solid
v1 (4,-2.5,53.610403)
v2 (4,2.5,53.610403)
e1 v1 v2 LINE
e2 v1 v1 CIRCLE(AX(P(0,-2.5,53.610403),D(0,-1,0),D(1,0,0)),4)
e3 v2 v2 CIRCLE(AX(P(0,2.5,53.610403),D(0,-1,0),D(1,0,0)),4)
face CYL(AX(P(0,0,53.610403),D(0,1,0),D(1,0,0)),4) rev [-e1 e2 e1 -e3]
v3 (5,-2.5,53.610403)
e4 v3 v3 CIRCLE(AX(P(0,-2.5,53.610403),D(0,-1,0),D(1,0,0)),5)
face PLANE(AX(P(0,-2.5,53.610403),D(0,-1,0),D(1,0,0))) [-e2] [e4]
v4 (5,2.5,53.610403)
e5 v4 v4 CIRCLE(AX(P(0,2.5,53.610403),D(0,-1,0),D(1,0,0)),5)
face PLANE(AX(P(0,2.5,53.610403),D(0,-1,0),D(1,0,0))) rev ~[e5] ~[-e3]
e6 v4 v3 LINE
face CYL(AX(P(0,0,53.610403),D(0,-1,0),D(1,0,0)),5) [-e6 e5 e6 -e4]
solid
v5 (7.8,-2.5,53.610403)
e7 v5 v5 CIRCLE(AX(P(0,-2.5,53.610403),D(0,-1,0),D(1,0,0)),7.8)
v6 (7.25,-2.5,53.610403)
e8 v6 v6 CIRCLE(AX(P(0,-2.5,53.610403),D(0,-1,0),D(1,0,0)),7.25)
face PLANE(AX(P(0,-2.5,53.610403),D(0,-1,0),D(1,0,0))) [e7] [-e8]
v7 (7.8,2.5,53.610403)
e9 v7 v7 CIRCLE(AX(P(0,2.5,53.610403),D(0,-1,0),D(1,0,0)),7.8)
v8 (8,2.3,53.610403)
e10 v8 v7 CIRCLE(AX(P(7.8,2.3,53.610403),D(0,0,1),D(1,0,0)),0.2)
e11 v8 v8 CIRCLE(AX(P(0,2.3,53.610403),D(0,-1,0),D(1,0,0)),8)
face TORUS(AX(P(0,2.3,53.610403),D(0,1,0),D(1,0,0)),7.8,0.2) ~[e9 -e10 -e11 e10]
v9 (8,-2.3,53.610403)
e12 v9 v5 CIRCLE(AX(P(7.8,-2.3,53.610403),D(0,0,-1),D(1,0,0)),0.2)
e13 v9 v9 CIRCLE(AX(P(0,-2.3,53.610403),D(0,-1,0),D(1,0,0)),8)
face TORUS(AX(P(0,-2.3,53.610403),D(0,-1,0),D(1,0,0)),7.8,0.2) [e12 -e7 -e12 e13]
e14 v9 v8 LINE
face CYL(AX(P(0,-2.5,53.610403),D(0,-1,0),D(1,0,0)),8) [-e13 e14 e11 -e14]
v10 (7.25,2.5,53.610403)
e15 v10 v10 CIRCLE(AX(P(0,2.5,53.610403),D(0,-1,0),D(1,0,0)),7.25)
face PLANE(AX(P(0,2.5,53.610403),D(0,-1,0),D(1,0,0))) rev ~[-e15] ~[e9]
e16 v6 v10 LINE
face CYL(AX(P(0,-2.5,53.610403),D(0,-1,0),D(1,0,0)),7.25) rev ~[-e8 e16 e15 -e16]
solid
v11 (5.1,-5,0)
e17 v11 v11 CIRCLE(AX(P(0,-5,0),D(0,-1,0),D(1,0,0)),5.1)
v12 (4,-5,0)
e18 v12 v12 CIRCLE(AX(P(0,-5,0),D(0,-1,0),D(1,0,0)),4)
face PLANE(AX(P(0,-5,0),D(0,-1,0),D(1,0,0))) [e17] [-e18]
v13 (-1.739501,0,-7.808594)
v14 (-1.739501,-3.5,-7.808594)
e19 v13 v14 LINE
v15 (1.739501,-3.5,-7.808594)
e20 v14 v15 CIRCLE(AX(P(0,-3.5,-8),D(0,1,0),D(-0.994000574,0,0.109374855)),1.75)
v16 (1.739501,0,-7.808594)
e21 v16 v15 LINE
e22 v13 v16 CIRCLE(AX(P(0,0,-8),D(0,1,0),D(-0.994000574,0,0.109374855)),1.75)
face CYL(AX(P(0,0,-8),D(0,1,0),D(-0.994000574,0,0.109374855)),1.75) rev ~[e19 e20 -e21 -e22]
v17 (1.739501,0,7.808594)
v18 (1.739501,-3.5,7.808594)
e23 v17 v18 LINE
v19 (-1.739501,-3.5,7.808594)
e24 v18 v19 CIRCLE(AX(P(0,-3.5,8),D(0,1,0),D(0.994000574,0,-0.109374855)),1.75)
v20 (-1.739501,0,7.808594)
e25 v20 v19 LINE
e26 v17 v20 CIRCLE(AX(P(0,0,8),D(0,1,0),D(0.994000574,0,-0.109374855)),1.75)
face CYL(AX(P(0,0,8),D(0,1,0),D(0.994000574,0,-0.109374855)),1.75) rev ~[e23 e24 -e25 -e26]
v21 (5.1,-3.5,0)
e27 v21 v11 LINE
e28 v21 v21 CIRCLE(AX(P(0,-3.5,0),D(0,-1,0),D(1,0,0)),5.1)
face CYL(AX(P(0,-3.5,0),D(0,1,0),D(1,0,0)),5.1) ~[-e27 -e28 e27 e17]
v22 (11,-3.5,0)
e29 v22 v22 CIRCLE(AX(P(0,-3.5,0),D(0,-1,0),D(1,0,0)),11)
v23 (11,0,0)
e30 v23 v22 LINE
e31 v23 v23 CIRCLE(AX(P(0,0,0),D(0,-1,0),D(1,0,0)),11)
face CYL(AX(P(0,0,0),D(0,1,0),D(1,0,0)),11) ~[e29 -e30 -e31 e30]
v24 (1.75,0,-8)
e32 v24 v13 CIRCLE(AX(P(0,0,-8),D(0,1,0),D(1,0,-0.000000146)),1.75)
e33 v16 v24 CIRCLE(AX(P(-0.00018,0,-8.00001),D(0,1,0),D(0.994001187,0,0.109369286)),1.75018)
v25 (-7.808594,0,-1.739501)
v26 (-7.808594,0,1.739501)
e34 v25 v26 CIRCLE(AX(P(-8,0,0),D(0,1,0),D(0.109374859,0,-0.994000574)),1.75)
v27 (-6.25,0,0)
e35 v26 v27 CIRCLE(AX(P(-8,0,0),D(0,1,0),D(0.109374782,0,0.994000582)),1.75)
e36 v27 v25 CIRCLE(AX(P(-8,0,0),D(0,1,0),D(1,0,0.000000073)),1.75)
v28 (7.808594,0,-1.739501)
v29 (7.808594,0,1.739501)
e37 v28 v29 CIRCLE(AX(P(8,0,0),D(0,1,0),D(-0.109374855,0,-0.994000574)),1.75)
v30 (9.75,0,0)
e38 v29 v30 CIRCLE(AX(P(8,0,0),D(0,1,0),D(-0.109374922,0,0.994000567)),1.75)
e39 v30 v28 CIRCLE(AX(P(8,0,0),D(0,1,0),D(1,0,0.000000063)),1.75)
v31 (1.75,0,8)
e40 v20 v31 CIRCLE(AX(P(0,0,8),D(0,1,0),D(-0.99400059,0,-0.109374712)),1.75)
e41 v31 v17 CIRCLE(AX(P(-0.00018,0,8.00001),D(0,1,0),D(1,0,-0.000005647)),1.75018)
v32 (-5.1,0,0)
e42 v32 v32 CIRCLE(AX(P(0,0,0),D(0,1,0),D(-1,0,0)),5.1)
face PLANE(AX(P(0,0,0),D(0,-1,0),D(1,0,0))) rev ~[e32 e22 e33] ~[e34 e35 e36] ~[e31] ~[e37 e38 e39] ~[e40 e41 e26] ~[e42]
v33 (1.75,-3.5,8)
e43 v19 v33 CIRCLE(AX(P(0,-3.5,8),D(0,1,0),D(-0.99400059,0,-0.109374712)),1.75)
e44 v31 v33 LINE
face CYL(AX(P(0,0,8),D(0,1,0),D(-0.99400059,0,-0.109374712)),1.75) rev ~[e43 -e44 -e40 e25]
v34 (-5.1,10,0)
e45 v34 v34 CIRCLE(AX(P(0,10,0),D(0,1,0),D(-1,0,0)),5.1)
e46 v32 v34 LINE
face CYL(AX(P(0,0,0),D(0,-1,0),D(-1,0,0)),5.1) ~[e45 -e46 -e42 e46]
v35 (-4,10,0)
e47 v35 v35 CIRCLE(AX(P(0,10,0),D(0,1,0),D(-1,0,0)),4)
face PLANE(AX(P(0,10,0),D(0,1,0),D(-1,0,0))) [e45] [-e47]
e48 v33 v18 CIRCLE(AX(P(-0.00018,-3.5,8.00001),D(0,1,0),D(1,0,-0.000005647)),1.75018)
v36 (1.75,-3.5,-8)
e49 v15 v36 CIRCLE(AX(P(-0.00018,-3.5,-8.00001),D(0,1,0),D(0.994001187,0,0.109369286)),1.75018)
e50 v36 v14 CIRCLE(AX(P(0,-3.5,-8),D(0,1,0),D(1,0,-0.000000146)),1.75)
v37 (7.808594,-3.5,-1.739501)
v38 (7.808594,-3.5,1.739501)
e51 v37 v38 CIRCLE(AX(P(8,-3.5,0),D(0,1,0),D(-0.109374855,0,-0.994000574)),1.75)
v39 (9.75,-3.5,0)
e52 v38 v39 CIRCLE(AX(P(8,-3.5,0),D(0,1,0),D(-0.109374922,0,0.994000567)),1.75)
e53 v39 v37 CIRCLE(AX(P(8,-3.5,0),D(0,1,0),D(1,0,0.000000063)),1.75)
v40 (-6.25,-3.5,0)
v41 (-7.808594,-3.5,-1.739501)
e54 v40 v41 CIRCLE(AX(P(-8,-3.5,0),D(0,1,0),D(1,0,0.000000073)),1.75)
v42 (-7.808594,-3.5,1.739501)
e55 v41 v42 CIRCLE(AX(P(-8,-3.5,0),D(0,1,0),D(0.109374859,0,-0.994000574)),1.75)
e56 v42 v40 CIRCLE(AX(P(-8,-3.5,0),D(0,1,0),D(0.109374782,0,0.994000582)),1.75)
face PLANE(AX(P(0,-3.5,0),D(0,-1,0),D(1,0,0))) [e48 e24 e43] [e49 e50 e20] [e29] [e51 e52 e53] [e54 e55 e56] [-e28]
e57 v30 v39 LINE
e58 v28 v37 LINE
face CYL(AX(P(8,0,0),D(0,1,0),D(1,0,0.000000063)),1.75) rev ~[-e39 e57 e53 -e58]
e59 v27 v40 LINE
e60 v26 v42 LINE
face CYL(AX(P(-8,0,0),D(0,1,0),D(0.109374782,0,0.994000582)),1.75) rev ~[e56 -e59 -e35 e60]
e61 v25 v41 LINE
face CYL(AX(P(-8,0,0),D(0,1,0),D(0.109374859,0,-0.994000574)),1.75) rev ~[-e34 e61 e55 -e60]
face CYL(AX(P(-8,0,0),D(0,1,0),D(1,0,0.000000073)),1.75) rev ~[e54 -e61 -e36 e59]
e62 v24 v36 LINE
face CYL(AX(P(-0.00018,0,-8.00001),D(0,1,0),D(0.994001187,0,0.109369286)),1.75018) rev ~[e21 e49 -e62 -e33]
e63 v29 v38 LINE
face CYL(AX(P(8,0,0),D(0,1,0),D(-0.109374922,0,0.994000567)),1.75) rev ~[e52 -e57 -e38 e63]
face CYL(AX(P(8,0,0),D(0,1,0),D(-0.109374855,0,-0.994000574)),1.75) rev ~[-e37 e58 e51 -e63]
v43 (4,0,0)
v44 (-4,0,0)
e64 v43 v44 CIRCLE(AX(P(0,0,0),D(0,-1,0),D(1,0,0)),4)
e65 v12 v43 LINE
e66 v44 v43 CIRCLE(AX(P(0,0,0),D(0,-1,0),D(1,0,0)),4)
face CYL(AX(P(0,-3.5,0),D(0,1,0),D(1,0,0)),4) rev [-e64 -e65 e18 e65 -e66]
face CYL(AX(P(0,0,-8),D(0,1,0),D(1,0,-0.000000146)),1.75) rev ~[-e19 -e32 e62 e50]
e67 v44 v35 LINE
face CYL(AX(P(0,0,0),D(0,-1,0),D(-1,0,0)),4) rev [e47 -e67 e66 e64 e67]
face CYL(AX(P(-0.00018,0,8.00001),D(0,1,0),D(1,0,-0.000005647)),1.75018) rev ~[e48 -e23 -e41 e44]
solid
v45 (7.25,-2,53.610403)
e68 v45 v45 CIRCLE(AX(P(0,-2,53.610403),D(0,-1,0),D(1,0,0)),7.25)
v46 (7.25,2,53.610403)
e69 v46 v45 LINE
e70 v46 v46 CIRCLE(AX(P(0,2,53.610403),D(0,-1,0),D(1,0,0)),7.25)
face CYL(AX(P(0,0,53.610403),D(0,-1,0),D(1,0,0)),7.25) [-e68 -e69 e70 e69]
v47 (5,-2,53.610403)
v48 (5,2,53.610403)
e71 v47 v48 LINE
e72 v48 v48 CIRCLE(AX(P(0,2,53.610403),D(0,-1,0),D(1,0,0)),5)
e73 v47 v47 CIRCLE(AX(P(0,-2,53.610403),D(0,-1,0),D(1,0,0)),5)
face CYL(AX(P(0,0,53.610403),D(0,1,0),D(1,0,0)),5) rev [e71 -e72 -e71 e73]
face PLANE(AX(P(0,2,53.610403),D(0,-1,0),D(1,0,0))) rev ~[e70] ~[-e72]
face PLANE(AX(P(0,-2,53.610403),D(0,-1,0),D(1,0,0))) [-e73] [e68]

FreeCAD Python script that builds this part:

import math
import FreeCAD as App
import Part
import Sketcher

V = App.Vector


def edges_at(feature, points):
    """Names of the edges that pass closest to the given points."""
    edges = feature.Shape.Edges
    near = lambda p: min(range(len(edges)), key=lambda i: edges[i].distToShape(Part.Vertex(*p))[0])
    return sorted({f"Edge{near(p) + 1}" for p in points})

doc = App.newDocument("Part")
body = doc.addObject("PartDesign::Body", "Body")

sketch1 = body.newObject("Sketcher::SketchObject", "Sketch")
sketch1.AttachmentSupport = (doc.getObject("XZ_Plane"), [""])
sketch1.MapMode = "FlatFace"
sketch1.addGeometry([
    Part.Circle(V(0, 0, 0), V(0, 0, 1), 11),
    Part.ArcOfCircle(Part.Circle(V(-8, 0, 0), V(0, 0, 1), 1.75), math.radians(84), math.radians(276)),
    Part.ArcOfCircle(Part.Circle(V(-8, 0, 0), V(0, 0, 1), 1.75), math.radians(0), math.radians(84)),
    Part.ArcOfCircle(Part.Circle(V(-8, 0, 0), V(0, 0, 1), 1.75), math.radians(-84), math.radians(0)),
    Part.Circle(V(0, 0, 0), V(0, 0, 1), 4),
    Part.ArcOfCircle(Part.Circle(V(0, -8, 0), V(0, 0, 1), 1.75), math.radians(174), math.radians(360)),
    Part.ArcOfCircle(Part.Circle(V(0, -8, 0), V(0, 0, 1), 1.75), math.radians(6), math.radians(174)),
    Part.ArcOfCircle(Part.Circle(V(0, -8, 0), V(0, 0, 1), 1.75), math.radians(0), math.radians(6.28)),
    Part.ArcOfCircle(Part.Circle(V(8, 0, 0), V(0, 0, 1), 1.75), math.radians(-96), math.radians(0)),
    Part.ArcOfCircle(Part.Circle(V(8, 0, 0), V(0, 0, 1), 1.75), math.radians(96), math.radians(264)),
    Part.ArcOfCircle(Part.Circle(V(8, 0, 0), V(0, 0, 1), 1.75), math.radians(0), math.radians(96)),
    Part.ArcOfCircle(Part.Circle(V(0, 8, 0), V(0, 0, 1), 1.75), math.radians(-6.28), math.radians(0)),
    Part.ArcOfCircle(Part.Circle(V(0, 8, 0), V(0, 0, 1), 1.75), math.radians(-174), math.radians(-6)),
    Part.ArcOfCircle(Part.Circle(V(0, 8, 0), V(0, 0, 1), 1.75), math.radians(0), math.radians(186)),
], False)
sketch1.addConstraint([
    Sketcher.Constraint("Tangent", 1, 1, 2, 2),
    Sketcher.Constraint("Tangent", 2, 1, 3, 2),
    Sketcher.Constraint("Tangent", 3, 1, 1, 2),
    Sketcher.Constraint("Tangent", 5, 1, 6, 2),
    Sketcher.Constraint("Coincident", 6, 1, 7, 2),
    Sketcher.Constraint("Coincident", 7, 1, 5, 2),
    Sketcher.Constraint("Tangent", 8, 1, 9, 2),
    Sketcher.Constraint("Tangent", 9, 1, 10, 2),
    Sketcher.Constraint("Tangent", 10, 1, 8, 2),
    Sketcher.Constraint("Coincident", 11, 1, 12, 2),
    Sketcher.Constraint("Tangent", 12, 1, 13, 2),
    Sketcher.Constraint("Coincident", 13, 1, 11, 2),
    Sketcher.Constraint("Coincident", 0, 3, -1, 1),
    Sketcher.Constraint("Coincident", 4, 3, -1, 1),
    Sketcher.Constraint("Equal", 3, 5),
    Sketcher.Constraint("Equal", 5, 6),
    Sketcher.Constraint("Equal", 6, 8),
    Sketcher.Constraint("Equal", 7, 11),
    Sketcher.Constraint("Equal", 10, 12),
    Sketcher.Constraint("Equal", 12, 13),
    Sketcher.Constraint("Symmetric", 1, 3, 8, 3, -1, 1),
    Sketcher.Constraint("Symmetric", 5, 3, 12, 3, -1, 1),
    Sketcher.Constraint("Symmetric", 5, 1, 6, 1, -2),
    Sketcher.Constraint("Symmetric", 3, 1, 8, 1, -2),
    Sketcher.Constraint("PointOnObject", 2, 1, -1),
    Sketcher.Constraint("PointOnObject", 10, 1, -1),
    Sketcher.Constraint("Horizontal", 6, 3, 7, 1),
    Sketcher.Constraint("Horizontal", 1, 1, 9, 1),
    Sketcher.Constraint("Horizontal", 11, 1, 12, 1),
    Sketcher.Constraint("Horizontal", 12, 3, 13, 1),
    Sketcher.Constraint("Vertical", 1, 1, 3, 1),
    Sketcher.Constraint("Vertical", 6, 1, 11, 1),
    Sketcher.Constraint("Diameter", 0, 22.0),
    Sketcher.Constraint("Diameter", 4, 8.0),
    Sketcher.Constraint("Radius", 1, 1.75),
    Sketcher.Constraint("DistanceX", 1, 3, -1, 1, 8.0),
    Sketcher.Constraint("DistanceY", 5, 3, -1, 1, 8.0),
    Sketcher.Constraint("Radius", 7, 1.75018),
    Sketcher.Constraint("DistanceY", 3, 1, 1, 1, 3.479002),
    Sketcher.Constraint("DistanceX", 5, 1, 6, 1, 3.479002),
])
pad1 = body.newObject("PartDesign::Pad", "Pad")
pad1.Profile = sketch1
pad1.Length = 3.5

sketch2 = body.newObject("Sketcher::SketchObject", "Sketch001")
sketch2.AttachmentSupport = (doc.getObject("XZ_Plane"), [""])
sketch2.MapMode = "FlatFace"
sketch2.AttachmentOffset = App.Placement(V(0, 0, 3.5), App.Rotation())
sketch2.addGeometry([
    Part.Circle(V(0, 0, 0), V(0, 0, 1), 5.1),
    Part.Circle(V(0, 0, 0), V(0, 0, 1), 4),
], False)
sketch2.addConstraint([
    Sketcher.Constraint("Coincident", 0, 3, -1, 1),
    Sketcher.Constraint("Coincident", 1, 3, -1, 1),
    Sketcher.Constraint("Diameter", 1, 8.0),
    Sketcher.Constraint("Diameter", 0, 10.2),
])
pad2 = body.newObject("PartDesign::Pad", "Pad001")
pad2.Profile = sketch2
pad2.Length = 1.5

sketch3 = body.newObject("Sketcher::SketchObject", "Sketch002")
sketch3.AttachmentSupport = (doc.getObject("XZ_Plane"), [""])
sketch3.MapMode = "FlatFace"
sketch3.addGeometry([
    Part.Circle(V(0, 0, 0), V(0, 0, 1), 5.1),
    Part.Circle(V(0, 0, 0), V(0, 0, 1), 4),
], False)
sketch3.addConstraint([
    Sketcher.Constraint("Coincident", 0, 3, -1, 1),
    Sketcher.Constraint("Coincident", 1, 3, -1, 1),
    Sketcher.Constraint("Diameter", 1, 8.0),
    Sketcher.Constraint("Diameter", 0, 10.2),
])
pad3 = body.newObject("PartDesign::Pad", "Pad002")
pad3.Profile = sketch3
pad3.Length = 10
pad3.Reversed = True
body2 = doc.addObject("PartDesign::Body", "Body001")

sketch4 = body2.newObject("Sketcher::SketchObject", "Sketch003")
sketch4.AttachmentSupport = (doc.getObject("XZ_Plane001"), [""])
sketch4.MapMode = "FlatFace"
sketch4.addGeometry([
    Part.Circle(V(0, 53.6, 0), V(0, 0, 1), 5),
    Part.Circle(V(0, 53.6, 0), V(0, 0, 1), 4),
], False)
sketch4.addConstraint([
    Sketcher.Constraint("Coincident", 1, 3, 0, 3),
    Sketcher.Constraint("PointOnObject", 0, 3, -2),
    Sketcher.Constraint("Diameter", 0, 10.0),
    Sketcher.Constraint("Diameter", 1, 8.0),
    Sketcher.Constraint("DistanceY", -1, 1, 0, 3, 53.610403),
])
pad4 = body2.newObject("PartDesign::Pad", "Pad003")
pad4.Profile = sketch4
pad4.Length = 5
pad4.Midplane = True
body3 = doc.addObject("PartDesign::Body", "Body002")

sketch5 = body3.newObject("Sketcher::SketchObject", "Sketch004")
sketch5.AttachmentSupport = (doc.getObject("XZ_Plane002"), [""])
sketch5.MapMode = "FlatFace"
sketch5.addGeometry([
    Part.Circle(V(0, 54, 0), V(0, 0, 1), 7),
    Part.Circle(V(0, 54, 0), V(0, 0, 1), 5),
], False)
sketch5.addConstraint([
    Sketcher.Constraint("Coincident", 1, 3, 0, 3),
    Sketcher.Constraint("PointOnObject", 0, 3, -2),
    Sketcher.Constraint("Diameter", 1, 10.0),
    Sketcher.Constraint("Diameter", 0, 14.5),
    Sketcher.Constraint("DistanceY", -1, 1, 0, 3, 53.610403),
])
pad5 = body3.newObject("PartDesign::Pad", "Pad004")
pad5.Profile = sketch5
pad5.Length = 4
pad5.Midplane = True
body4 = doc.addObject("PartDesign::Body", "Body003")

sketch6 = body4.newObject("Sketcher::SketchObject", "Sketch005")
sketch6.AttachmentSupport = (doc.getObject("XZ_Plane003"), [""])
sketch6.MapMode = "FlatFace"
sketch6.AttachmentOffset = App.Placement(V(0, 0, 2.5), App.Rotation())
sketch6.addGeometry([
    Part.Circle(V(0, 54, 0), V(0, 0, 1), 8),
    Part.Circle(V(0, 54, 0), V(0, 0, 1), 7),
], False)
sketch6.addConstraint([
    Sketcher.Constraint("Coincident", 1, 3, 0, 3),
    Sketcher.Constraint("PointOnObject", 0, 3, -2),
    Sketcher.Constraint("Diameter", 0, 16.0),
    Sketcher.Constraint("Diameter", 1, 14.5),
    Sketcher.Constraint("DistanceY", -1, 1, 0, 3, 53.610403),
])
pad6 = body4.newObject("PartDesign::Pad", "Pad005")
pad6.Profile = sketch6
pad6.Length = 5
pad6.Reversed = True
doc.recompute()

fillet = body4.newObject("PartDesign::Fillet", "Fillet")
fillet.Base = (pad6, edges_at(pad6, [(-8, -2.5, 53.61), (-8, 2.5, 53.61)]))
fillet.Radius = 0.2

doc.recompute()
